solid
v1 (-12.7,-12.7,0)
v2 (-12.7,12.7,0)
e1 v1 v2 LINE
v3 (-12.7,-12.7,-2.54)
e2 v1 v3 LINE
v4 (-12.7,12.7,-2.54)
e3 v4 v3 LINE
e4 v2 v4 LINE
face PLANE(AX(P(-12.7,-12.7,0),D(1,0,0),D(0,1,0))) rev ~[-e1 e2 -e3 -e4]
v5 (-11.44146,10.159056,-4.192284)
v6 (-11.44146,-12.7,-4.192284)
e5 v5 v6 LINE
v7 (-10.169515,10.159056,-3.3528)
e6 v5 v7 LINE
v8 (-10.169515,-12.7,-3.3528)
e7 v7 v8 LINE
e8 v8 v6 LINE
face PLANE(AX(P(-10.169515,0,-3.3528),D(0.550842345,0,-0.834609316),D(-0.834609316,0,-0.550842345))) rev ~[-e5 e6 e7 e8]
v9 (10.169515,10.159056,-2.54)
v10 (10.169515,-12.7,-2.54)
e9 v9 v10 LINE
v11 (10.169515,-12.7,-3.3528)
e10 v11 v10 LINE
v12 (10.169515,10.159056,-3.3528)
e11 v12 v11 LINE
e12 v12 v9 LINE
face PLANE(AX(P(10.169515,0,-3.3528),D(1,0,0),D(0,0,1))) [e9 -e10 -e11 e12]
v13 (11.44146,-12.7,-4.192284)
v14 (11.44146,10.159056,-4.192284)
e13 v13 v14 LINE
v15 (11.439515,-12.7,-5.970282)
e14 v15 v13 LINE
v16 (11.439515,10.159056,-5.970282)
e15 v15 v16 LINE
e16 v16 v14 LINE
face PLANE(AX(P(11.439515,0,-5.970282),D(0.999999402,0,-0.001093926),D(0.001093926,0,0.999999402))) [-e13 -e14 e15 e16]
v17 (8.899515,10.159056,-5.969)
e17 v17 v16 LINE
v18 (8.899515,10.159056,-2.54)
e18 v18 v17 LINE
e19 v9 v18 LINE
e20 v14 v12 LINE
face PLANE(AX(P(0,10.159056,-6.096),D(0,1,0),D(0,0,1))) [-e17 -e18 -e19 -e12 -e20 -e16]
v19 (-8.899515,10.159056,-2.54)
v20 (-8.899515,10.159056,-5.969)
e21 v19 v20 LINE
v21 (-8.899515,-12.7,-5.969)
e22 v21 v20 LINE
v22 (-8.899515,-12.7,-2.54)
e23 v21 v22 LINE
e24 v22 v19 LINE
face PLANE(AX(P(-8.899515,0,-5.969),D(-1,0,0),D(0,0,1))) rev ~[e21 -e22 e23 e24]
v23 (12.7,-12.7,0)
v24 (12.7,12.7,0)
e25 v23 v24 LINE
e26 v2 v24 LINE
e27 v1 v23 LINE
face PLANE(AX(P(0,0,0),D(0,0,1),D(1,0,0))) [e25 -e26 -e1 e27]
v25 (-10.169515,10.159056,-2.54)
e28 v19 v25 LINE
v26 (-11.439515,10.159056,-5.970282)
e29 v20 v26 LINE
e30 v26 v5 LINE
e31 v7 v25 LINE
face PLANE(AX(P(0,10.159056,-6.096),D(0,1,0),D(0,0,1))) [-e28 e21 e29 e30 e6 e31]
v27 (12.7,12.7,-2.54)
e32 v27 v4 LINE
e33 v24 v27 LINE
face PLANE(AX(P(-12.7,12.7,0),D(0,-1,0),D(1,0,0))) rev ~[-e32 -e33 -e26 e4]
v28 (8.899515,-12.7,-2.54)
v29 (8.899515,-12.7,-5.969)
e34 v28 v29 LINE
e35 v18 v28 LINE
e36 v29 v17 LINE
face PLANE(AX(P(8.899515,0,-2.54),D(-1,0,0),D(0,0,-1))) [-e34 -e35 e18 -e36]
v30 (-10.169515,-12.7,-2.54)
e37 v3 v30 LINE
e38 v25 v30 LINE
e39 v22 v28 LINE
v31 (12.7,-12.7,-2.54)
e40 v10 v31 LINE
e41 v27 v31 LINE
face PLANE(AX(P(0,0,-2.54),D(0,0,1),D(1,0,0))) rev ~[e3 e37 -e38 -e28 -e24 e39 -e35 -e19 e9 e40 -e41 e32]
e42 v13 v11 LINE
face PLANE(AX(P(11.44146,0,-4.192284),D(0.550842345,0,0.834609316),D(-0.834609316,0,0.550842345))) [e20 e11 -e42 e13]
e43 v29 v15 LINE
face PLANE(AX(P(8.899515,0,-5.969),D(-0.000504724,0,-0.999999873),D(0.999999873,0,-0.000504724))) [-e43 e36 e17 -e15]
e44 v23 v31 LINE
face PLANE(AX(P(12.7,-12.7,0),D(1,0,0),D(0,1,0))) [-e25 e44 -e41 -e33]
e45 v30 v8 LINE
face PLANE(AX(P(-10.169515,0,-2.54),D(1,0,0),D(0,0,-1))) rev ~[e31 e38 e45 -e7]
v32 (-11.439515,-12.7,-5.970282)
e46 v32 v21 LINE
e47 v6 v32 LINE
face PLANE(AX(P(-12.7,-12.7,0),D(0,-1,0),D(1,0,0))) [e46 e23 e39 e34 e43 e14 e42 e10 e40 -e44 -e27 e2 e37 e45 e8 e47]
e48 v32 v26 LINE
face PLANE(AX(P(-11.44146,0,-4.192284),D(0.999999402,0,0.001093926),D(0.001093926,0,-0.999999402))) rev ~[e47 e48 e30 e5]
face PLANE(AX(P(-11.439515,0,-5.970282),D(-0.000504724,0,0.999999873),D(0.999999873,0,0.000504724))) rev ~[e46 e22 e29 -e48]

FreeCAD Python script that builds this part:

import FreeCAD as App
import Part
import Sketcher
from FreeCAD import Vector
Q = App.Units.Quantity

doc = App.newDocument("Part")
params = doc.addObject("Spreadsheet::Sheet", "Params")
for row, (alias, value) in enumerate([
    ("sketch1_width", "1 in"),
    ("pad1_length", "0.1 in"),
    ("sketch2_length", "0.1 in"),
    ("sketch2_width", "0.05 in"),
    ("sketch2_length2", "0.06 in"),
    ("sketch2_length3", "0.07 in"),
    ("sketch2_height", "0.032 in"),
    ("pad2_length", "1 in"),
    ("sketch3_height", "0.14 in"),
    ("pocket1_length", "1 in"),
], start=1):
    params.set(f"A{row}", alias)
    params.set(f"B{row}", "=" + value)
    params.setAlias(f"B{row}", alias)

body = doc.addObject("PartDesign::Body", "Body")

sketch1 = doc.addObject("Sketcher::SketchObject", "Sketch")
body.addObject(sketch1)
sketch1.AttachmentSupport = (doc.XY_Plane, [""])
sketch1.MapMode = "FlatFace"
sketch1.addGeometry(Part.LineSegment(Vector(-13, 13, 0), Vector(-13, -13, 0)), False)
sketch1.addGeometry(Part.LineSegment(Vector(-13, -13, 0), Vector(13, -13, 0)), False)
sketch1.addGeometry(Part.LineSegment(Vector(13, -13, 0), Vector(13, 13, 0)), False)
sketch1.addGeometry(Part.LineSegment(Vector(13, 13, 0), Vector(-13, 13, 0)), False)
sketch1.addConstraint(Sketcher.Constraint("Coincident", 0, 2, 1, 1))
sketch1.addConstraint(Sketcher.Constraint("Coincident", 1, 2, 2, 1))
sketch1.addConstraint(Sketcher.Constraint("Coincident", 2, 2, 3, 1))
sketch1.addConstraint(Sketcher.Constraint("Coincident", 3, 2, 0, 1))
sketch1.addConstraint(Sketcher.Constraint("Vertical", 0))
sketch1.addConstraint(Sketcher.Constraint("Horizontal", 1))
sketch1.addConstraint(Sketcher.Constraint("Vertical", 2))
sketch1.addConstraint(Sketcher.Constraint("Horizontal", 3))
sketch1.addConstraint(Sketcher.Constraint("Symmetric", 0, 2, 2, 2, -1, 1))
sketch1.addConstraint(Sketcher.Constraint("Equal", 3, 0))
sketch1.addConstraint(Sketcher.Constraint("DistanceX", 1, 1, 1, 2, Q("1 in")))
sketch1.setExpression("Constraints[10]", "Params.sketch1_width")
pad1 = doc.addObject("PartDesign::Pad", "Pad")
body.addObject(pad1)
pad1.Profile = sketch1
pad1.setExpression("Length", "Params.pad1_length")
pad1.Reversed = True

sketch2 = doc.addObject("Sketcher::SketchObject", "Sketch001")
body.addObject(sketch2)
sketch2.AttachmentSupport = (doc.XZ_Plane, [""])
sketch2.MapMode = "FlatFace"
sketch2.addGeometry(Part.LineSegment(Vector(-8.9, -2.5, 0), Vector(-10.2, -2.5, 0)), False)
sketch2.addGeometry(Part.LineSegment(Vector(-10.2, -2.5, 0), Vector(-10.2, -3.4, 0)), False)
sketch2.addGeometry(Part.LineSegment(Vector(-10.2, -3.4, 0), Vector(-11.4, -4.2, 0)), False)
sketch2.addGeometry(Part.LineSegment(Vector(-11.4, -4.2, 0), Vector(-11.4, -6, 0)), False)
sketch2.addGeometry(Part.LineSegment(Vector(-11.4, -6, 0), Vector(-8.9, -6, 0)), False)
sketch2.addGeometry(Part.LineSegment(Vector(-8.9, -6, 0), Vector(-8.9, -2.5, 0)), False)
sketch2.addGeometry(Part.LineSegment(Vector(11.4, -4.2, 0), Vector(10.2, -3.4, 0)), False)
sketch2.addGeometry(Part.LineSegment(Vector(10.2, -3.4, 0), Vector(10.2, -2.5, 0)), False)
sketch2.addGeometry(Part.LineSegment(Vector(10.2, -2.5, 0), Vector(8.9, -2.5, 0)), False)
sketch2.addGeometry(Part.LineSegment(Vector(8.9, -2.5, 0), Vector(8.9, -6, 0)), False)
sketch2.addGeometry(Part.LineSegment(Vector(8.9, -6, 0), Vector(11.4, -6, 0)), False)
sketch2.addGeometry(Part.LineSegment(Vector(11.4, -6, 0), Vector(11.4, -4.2, 0)), False)
sketch2.addConstraint(Sketcher.Constraint("Coincident", 0, 2, 1, 1))
sketch2.addConstraint(Sketcher.Constraint("Coincident", 1, 2, 2, 1))
sketch2.addConstraint(Sketcher.Constraint("Coincident", 2, 2, 3, 1))
sketch2.addConstraint(Sketcher.Constraint("Coincident", 3, 2, 4, 1))
sketch2.addConstraint(Sketcher.Constraint("Coincident", 4, 2, 5, 1))
sketch2.addConstraint(Sketcher.Constraint("Coincident", 5, 2, 0, 1))
sketch2.addConstraint(Sketcher.Constraint("Coincident", 6, 2, 7, 1))
sketch2.addConstraint(Sketcher.Constraint("Coincident", 7, 2, 8, 1))
sketch2.addConstraint(Sketcher.Constraint("Coincident", 8, 2, 9, 1))
sketch2.addConstraint(Sketcher.Constraint("Coincident", 9, 2, 10, 1))
sketch2.addConstraint(Sketcher.Constraint("Coincident", 10, 2, 11, 1))
sketch2.addConstraint(Sketcher.Constraint("Coincident", 11, 2, 6, 1))
sketch2.addConstraint(Sketcher.Constraint("Horizontal", 0))
sketch2.addConstraint(Sketcher.Constraint("Vertical", 1))
sketch2.addConstraint(Sketcher.Constraint("Vertical", 5))
sketch2.addConstraint(Sketcher.Constraint("Vertical", 7))
sketch2.addConstraint(Sketcher.Constraint("Horizontal", 8))
sketch2.addConstraint(Sketcher.Constraint("Vertical", 9))
sketch2.addConstraint(Sketcher.Constraint("Symmetric", 1, 2, 6, 2, -2))
sketch2.addConstraint(Sketcher.Constraint("Symmetric", 5, 2, 8, 2, -2))
sketch2.addConstraint(Sketcher.Constraint("Symmetric", 3, 2, 10, 2, -2))
sketch2.addConstraint(Sketcher.Constraint("Symmetric", 2, 2, 11, 2, -2))
sketch2.addConstraint(Sketcher.Constraint("Horizontal", 4, 2, 9, 2))
sketch2.addConstraint(Sketcher.Constraint("Distance", 4, Q("0.1 in")))
sketch2.addConstraint(Sketcher.Constraint("DistanceX", 0, 2, 0, 1, Q("0.05 in")))
sketch2.addConstraint(Sketcher.Constraint("DistanceY", 0, 2, -1, 1, Q("0.1 in")))
sketch2.addConstraint(Sketcher.Constraint("Distance", 2, Q("0.06 in")))
sketch2.addConstraint(Sketcher.Constraint("Distance", 3, Q("0.07 in")))
sketch2.addConstraint(Sketcher.Constraint("DistanceY", 1, 2, 1, 1, Q("0.032 in")))
sketch2.addConstraint(Sketcher.Constraint("DistanceY", 5, 1, 5, 2, Q("0.135 in")))
sketch2.addConstraint(Sketcher.Constraint("DistanceX", 2, 2, -1, 1, 11.44146))
sketch2.addConstraint(Sketcher.Constraint("DistanceY", 3, 2, 0, 2, 3.430282))
sketch2.setExpression("Constraints[23]", "Params.sketch2_length")
sketch2.setExpression("Constraints[24]", "Params.sketch2_width")
sketch2.setExpression("Constraints[26]", "Params.sketch2_length2")
sketch2.setExpression("Constraints[27]", "Params.sketch2_length3")
sketch2.setExpression("Constraints[28]", "Params.sketch2_height")
pad2 = doc.addObject("PartDesign::Pad", "Pad001")
body.addObject(pad2)
pad2.Profile = sketch2
pad2.setExpression("Length", "Params.pad2_length")
pad2.Midplane = True

sketch3 = doc.addObject("Sketcher::SketchObject", "Sketch002")
body.addObject(sketch3)
sketch3.AttachmentSupport = (doc.YZ_Plane, [""])
sketch3.MapMode = "FlatFace"
sketch3.addGeometry(Part.LineSegment(Vector(10.2, -2.5, 0), Vector(10.2, -6.1, 0)), False)
sketch3.addGeometry(Part.LineSegment(Vector(10.2, -6.1, 0), Vector(12.7, -6.1, 0)), False)
sketch3.addGeometry(Part.LineSegment(Vector(12.7, -6.1, 0), Vector(12.7, -2.5, 0)), False)
sketch3.addGeometry(Part.LineSegment(Vector(12.7, -2.5, 0), Vector(10.2, -2.5, 0)), False)
sketch3.addConstraint(Sketcher.Constraint("Coincident", 0, 2, 1, 1))
sketch3.addConstraint(Sketcher.Constraint("Coincident", 1, 2, 2, 1))
sketch3.addConstraint(Sketcher.Constraint("Coincident", 2, 2, 3, 1))
sketch3.addConstraint(Sketcher.Constraint("Coincident", 3, 2, 0, 1))
sketch3.addConstraint(Sketcher.Constraint("Vertical", 0))
sketch3.addConstraint(Sketcher.Constraint("Horizontal", 1))
sketch3.addConstraint(Sketcher.Constraint("Vertical", 2))
sketch3.addConstraint(Sketcher.Constraint("Horizontal", 3))
sketch3.addConstraint(Sketcher.Constraint("DistanceY", 0, 2, 0, 1, Q("0.14 in")))
sketch3.addConstraint(Sketcher.Constraint("DistanceX", -1, 1, 1, 2, Q("0.5 in")))
sketch3.addConstraint(Sketcher.Constraint("DistanceY", 2, 2, -1, 1, Q("0.1 in")))
sketch3.addConstraint(Sketcher.Constraint("DistanceX", 1, 1, 1, 2, 2.540944))
sketch3.setExpression("Constraints[8]", "Params.sketch3_height")
pocket1 = doc.addObject("PartDesign::Pocket", "Pocket")
body.addObject(pocket1)
pocket1.Profile = sketch3
pocket1.setExpression("Length", "Params.pocket1_length")
pocket1.Midplane = True

doc.recompute()
